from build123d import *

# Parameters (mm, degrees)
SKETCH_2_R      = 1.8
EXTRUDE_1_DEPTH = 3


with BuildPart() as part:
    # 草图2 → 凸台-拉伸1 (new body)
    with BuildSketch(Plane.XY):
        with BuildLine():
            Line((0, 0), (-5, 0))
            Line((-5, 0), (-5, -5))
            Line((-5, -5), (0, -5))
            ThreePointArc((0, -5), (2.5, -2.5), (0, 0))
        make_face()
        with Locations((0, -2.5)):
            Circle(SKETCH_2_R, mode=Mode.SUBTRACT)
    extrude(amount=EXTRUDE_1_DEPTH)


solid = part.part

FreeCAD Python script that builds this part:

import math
import FreeCAD as App
import Part
import Sketcher
Q = App.Units.Quantity

doc = App.newDocument("Part")
body = doc.addObject("PartDesign::Body", "Body")

# Sketch on XY plane
sketch1 = body.newObject("Sketcher::SketchObject", "Sketch")
sketch1.AttachmentSupport = (doc.getObject("XY_Plane"), [""])
sketch1.MapMode = "FlatFace"
sketch1.addGeometry([
    Part.LineSegment(App.Vector(0, 0, 0), App.Vector(-5, 0, 0)),  # 0
    Part.LineSegment(App.Vector(-5, 0, 0), App.Vector(-5, -5, 0)),  # 1
    Part.LineSegment(App.Vector(-5, -5, 0), App.Vector(0, -5, 0)),  # 2
    Part.ArcOfCircle(Part.Circle(App.Vector(0, -2.5, 0), App.Vector(0, 0, 1), 2.5), math.radians(-90), math.radians(90)),  # 3
    Part.Circle(App.Vector(0, -2.5, 0), App.Vector(0, 0, 1), 1.8),  # 4
], False)
sketch1.addConstraint([
    Sketcher.Constraint("Coincident", 0, 2, 1, 1),
    Sketcher.Constraint("Coincident", 1, 2, 2, 1),
    Sketcher.Constraint("Tangent", 2, 2, 3, 1),
    Sketcher.Constraint("Tangent", 3, 2, 0, 1),
    Sketcher.Constraint("Horizontal", 0),
    Sketcher.Constraint("Vertical", 1),
    Sketcher.Constraint("Horizontal", 2),
    Sketcher.Constraint("Coincident", 3, 2, -1, 1),
    Sketcher.Constraint("Coincident", 4, 3, 3, 3),
    Sketcher.Constraint("Equal", 2, 1),
    Sketcher.Constraint("Diameter", 4, Q("3.6 mm")),
    Sketcher.Constraint("Radius", 3, Q("2.5 mm")),
])
pad1 = body.newObject("PartDesign::Pad", "Pad")
pad1.Profile = sketch1
pad1.Length = 3

doc.recompute()
